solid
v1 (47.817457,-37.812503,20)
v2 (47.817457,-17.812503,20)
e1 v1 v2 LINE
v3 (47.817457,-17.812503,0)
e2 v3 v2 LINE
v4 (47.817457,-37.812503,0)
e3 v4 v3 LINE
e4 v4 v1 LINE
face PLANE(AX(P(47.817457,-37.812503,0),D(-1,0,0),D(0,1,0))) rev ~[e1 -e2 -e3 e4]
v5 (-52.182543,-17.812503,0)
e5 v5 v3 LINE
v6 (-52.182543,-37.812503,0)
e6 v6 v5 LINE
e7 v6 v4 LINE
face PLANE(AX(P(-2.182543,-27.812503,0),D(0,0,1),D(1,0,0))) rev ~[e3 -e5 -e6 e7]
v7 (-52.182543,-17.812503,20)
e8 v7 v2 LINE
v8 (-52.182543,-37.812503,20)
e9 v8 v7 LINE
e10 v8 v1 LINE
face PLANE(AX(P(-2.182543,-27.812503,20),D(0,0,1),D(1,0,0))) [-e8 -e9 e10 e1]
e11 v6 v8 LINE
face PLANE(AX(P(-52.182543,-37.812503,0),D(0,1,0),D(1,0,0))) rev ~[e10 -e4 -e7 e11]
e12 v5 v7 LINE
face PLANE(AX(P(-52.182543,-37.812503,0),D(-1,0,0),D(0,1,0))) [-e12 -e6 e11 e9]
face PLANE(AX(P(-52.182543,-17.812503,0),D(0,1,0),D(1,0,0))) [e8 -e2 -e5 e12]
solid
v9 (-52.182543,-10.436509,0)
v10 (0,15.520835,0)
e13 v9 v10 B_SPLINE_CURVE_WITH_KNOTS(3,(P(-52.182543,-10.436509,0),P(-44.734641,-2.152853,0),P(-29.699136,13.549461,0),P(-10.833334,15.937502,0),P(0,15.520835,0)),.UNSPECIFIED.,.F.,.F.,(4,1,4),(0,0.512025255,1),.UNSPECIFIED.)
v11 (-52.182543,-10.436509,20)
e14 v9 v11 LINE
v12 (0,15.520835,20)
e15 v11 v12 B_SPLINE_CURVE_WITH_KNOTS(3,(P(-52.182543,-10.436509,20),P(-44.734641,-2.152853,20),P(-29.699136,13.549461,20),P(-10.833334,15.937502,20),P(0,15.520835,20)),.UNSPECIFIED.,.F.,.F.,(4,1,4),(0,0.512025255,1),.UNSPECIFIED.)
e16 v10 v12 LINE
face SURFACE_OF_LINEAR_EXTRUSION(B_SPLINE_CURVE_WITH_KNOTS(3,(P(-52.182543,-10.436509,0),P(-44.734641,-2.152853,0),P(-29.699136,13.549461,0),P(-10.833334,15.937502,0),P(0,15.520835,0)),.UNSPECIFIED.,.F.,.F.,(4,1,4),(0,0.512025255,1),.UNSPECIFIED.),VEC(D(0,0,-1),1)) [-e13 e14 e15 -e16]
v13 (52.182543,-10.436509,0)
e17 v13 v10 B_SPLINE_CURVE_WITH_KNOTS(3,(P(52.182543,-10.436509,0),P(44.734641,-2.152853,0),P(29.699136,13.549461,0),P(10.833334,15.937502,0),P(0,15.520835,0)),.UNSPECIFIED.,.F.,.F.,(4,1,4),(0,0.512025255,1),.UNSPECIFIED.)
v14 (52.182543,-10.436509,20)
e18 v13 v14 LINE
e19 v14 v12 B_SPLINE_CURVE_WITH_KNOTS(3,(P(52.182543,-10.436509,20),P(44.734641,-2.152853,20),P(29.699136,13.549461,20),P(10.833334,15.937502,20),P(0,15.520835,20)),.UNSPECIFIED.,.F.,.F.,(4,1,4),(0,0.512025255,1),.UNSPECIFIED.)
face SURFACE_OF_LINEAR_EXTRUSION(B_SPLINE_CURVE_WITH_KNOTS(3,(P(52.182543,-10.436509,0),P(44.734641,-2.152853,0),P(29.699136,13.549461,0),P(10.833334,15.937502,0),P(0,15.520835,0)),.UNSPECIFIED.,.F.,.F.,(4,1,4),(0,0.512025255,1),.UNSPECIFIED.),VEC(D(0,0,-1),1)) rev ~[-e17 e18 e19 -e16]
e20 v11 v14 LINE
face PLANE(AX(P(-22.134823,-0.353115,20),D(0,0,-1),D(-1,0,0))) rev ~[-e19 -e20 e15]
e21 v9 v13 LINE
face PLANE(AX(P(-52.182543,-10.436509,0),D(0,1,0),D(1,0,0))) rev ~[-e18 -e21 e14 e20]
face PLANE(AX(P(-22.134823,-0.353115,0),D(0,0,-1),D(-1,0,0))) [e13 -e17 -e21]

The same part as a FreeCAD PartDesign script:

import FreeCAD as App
import Part
import Sketcher
from FreeCAD import Vector

doc = App.newDocument("Part")
body = doc.addObject("PartDesign::Body", "Body")

# Sketch on XY plane
sketch1 = doc.addObject("Sketcher::SketchObject", "Sketch")
body.addObject(sketch1)
sketch1.AttachmentSupport = (doc.XY_Plane, [""])
sketch1.MapMode = "FlatFace"
sketch1.addGeometry([
    Part.BSplineCurve([Vector(-52.182543, -10.436509, 0), Vector(-44.734641, -2.152853, 0), Vector(-29.699136, 13.549461, 0), Vector(-10.833334, 15.937502, 0), Vector(0, 15.520835, 0)], [4, 1, 4], [0, 0.512025255, 1], False, 3, [1, 1, 1, 1, 1], False),
    Part.LineSegment(Vector(-52.182543, -10.436509, 0), Vector(52.182543, -10.436509, 0)),
    Part.BSplineCurve([Vector(52.182543, -10.436509, 0), Vector(44.734641, -2.152853, 0), Vector(29.699136, 13.549461, 0), Vector(10.833334, 15.937502, 0), Vector(0, 15.520835, 0)], [4, 1, 4], [0, 0.512025255, 1], False, 3, [1, 1, 1, 1, 1], False),
], False)
sketch1.addConstraint([
    Sketcher.Constraint("Block", 0),
    Sketcher.Constraint("Block", 2),
    Sketcher.Constraint("Coincident", 0, 1, 1, 1),
    Sketcher.Constraint("Coincident", 1, 2, 2, 1),
])
pad1 = doc.addObject("PartDesign::Pad", "Pad")
body.addObject(pad1)
pad1.Profile = sketch1
pad1.Length = 20
body2 = doc.addObject("PartDesign::Body", "Body001")

# Sketch on XY plane
sketch2 = doc.addObject("Sketcher::SketchObject", "Sketch001")
body2.addObject(sketch2)
sketch2.AttachmentSupport = (doc.getObject("XY_Plane001"), [""])
sketch2.MapMode = "FlatFace"
sketch2.addGeometry([
    Part.LineSegment(Vector(-52, -18, 0), Vector(-52, -38, 0)),
    Part.LineSegment(Vector(-52, -38, 0), Vector(48, -38, 0)),
    Part.LineSegment(Vector(48, -38, 0), Vector(48, -18, 0)),
    Part.LineSegment(Vector(48, -18, 0), Vector(-52, -18, 0)),
], False)
sketch2.addConstraint([
    Sketcher.Constraint("Coincident", 0, 2, 1, 1),
    Sketcher.Constraint("Coincident", 1, 2, 2, 1),
    Sketcher.Constraint("Coincident", 2, 2, 3, 1),
    Sketcher.Constraint("Coincident", 3, 2, 0, 1),
    Sketcher.Constraint("Vertical", 0),
    Sketcher.Constraint("Horizontal", 1),
    Sketcher.Constraint("Vertical", 2),
    Sketcher.Constraint("Horizontal", 3),
    Sketcher.Constraint("DistanceX", 1, 1, 1, 2, 100.0),
    Sketcher.Constraint("DistanceY", 0, 2, 0, 1, 20.0),
    Sketcher.Constraint("DistanceX", 0, 2, -1, 1, 52.182543),
    Sketcher.Constraint("DistanceY", 0, 2, -1, 1, 37.812503),
])
pad2 = doc.addObject("PartDesign::Pad", "Pad001")
body2.addObject(pad2)
pad2.Profile = sketch2
pad2.Length = 20

doc.recompute()
